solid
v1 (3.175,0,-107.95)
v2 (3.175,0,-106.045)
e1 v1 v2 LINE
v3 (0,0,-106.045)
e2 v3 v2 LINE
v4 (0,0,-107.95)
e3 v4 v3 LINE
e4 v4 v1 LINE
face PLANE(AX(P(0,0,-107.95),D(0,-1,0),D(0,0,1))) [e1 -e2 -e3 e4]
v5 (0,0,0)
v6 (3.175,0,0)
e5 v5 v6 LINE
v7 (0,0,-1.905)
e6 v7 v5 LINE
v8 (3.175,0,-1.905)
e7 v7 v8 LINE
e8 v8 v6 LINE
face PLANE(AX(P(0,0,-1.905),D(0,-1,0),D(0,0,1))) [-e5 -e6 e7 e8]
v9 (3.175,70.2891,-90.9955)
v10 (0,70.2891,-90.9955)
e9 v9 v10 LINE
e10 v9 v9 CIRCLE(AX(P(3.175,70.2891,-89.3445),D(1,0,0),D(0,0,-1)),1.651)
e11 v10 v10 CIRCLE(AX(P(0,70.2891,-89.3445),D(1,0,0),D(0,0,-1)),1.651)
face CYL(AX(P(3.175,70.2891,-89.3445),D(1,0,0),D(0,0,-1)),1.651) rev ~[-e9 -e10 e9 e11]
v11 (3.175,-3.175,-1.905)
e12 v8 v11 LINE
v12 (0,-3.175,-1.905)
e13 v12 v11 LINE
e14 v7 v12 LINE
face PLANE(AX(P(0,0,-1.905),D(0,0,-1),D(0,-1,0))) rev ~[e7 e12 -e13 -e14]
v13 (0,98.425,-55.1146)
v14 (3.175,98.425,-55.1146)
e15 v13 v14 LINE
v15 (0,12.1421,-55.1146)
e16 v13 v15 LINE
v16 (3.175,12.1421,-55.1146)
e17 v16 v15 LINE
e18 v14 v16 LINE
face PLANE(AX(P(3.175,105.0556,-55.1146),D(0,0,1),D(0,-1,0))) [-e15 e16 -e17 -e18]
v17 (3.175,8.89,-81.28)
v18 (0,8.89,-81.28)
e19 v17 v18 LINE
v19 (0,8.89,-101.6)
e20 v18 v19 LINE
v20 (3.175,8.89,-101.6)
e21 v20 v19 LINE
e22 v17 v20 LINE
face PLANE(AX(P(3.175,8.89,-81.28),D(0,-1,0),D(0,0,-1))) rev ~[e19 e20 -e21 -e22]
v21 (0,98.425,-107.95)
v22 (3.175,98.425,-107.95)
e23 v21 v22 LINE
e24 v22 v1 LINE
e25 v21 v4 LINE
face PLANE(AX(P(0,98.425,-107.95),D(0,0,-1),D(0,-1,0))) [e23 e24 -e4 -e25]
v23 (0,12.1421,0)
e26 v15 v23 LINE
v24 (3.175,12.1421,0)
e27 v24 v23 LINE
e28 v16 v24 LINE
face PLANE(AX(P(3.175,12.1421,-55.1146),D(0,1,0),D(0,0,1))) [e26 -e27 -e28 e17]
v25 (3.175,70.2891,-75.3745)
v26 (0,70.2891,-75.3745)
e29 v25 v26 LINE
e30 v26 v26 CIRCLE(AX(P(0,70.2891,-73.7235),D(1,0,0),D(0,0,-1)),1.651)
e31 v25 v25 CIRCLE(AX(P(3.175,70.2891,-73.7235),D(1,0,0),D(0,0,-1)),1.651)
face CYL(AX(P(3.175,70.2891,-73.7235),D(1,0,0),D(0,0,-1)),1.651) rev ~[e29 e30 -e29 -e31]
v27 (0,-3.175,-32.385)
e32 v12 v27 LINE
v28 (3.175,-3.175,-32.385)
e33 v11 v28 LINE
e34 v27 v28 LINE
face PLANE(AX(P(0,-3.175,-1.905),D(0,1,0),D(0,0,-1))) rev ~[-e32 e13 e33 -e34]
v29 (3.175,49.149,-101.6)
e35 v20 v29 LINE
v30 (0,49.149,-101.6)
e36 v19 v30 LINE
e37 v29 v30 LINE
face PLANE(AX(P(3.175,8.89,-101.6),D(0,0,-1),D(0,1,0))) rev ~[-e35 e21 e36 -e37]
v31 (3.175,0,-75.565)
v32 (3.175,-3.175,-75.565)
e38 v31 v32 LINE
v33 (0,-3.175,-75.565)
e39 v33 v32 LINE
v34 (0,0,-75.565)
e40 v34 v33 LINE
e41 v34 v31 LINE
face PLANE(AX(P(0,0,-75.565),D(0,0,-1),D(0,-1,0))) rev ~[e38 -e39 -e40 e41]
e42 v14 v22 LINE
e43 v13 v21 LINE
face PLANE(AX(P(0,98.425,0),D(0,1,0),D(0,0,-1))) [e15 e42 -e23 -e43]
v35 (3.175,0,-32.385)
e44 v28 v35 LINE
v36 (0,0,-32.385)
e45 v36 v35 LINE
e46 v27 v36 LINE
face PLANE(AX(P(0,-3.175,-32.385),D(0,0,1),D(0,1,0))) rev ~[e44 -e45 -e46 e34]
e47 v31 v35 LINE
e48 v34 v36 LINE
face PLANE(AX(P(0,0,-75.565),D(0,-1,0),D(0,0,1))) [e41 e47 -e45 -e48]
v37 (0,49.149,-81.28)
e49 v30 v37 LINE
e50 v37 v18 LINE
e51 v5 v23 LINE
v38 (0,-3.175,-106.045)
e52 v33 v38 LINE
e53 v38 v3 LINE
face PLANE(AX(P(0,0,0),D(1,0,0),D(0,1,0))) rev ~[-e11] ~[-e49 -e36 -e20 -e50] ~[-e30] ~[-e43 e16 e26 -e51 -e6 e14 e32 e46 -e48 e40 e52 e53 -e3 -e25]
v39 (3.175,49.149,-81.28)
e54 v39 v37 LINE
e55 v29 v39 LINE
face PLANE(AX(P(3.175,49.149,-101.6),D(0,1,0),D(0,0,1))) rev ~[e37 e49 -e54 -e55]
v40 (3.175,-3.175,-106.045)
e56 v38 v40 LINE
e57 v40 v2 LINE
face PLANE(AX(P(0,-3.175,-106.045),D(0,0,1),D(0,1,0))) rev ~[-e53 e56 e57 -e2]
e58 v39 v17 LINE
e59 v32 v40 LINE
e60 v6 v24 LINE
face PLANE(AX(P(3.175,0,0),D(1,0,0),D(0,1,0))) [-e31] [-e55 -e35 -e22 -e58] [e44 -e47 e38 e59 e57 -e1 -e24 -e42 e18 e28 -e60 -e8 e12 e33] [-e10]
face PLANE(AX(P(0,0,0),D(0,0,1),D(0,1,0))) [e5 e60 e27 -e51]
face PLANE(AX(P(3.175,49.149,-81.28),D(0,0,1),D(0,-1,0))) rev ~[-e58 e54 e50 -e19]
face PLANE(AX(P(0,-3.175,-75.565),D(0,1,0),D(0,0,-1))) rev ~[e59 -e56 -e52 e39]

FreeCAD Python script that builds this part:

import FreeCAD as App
import Part
import Sketcher

V = App.Vector
Q = App.Units.Quantity

doc = App.newDocument("Part")
body = doc.addObject("PartDesign::Body", "Body")

sketch1 = body.newObject("Sketcher::SketchObject", "Sketch")
sketch1.AttachmentSupport = (doc.getObject("YZ_Plane"), [""])
sketch1.MapMode = "FlatFace"
sketch1.addGeometry(Part.LineSegment(V(98.4, 0, 0), V(0, 0, 0)), False)
sketch1.addGeometry(Part.LineSegment(V(0, 0, 0), V(0, -1.9, 0)), False)
sketch1.addGeometry(Part.LineSegment(V(0, -1.9, 0), V(-3.2, -1.9, 0)), False)
sketch1.addGeometry(Part.LineSegment(V(-3.2, -1.9, 0), V(-3.2, -32.4, 0)), False)
sketch1.addGeometry(Part.LineSegment(V(-3.2, -32.4, 0), V(0, -32.4, 0)), False)
sketch1.addGeometry(Part.LineSegment(V(0, -32.4, 0), V(0, -75.6, 0)), False)
sketch1.addGeometry(Part.LineSegment(V(0, -75.6, 0), V(-3.2, -75.6, 0)), False)
sketch1.addGeometry(Part.LineSegment(V(-3.2, -75.6, 0), V(-3.2, -106, 0)), False)
sketch1.addGeometry(Part.LineSegment(V(-3.2, -106, 0), V(0, -106, 0)), False)
sketch1.addGeometry(Part.LineSegment(V(0, -106, 0), V(0, -108, 0)), False)
sketch1.addGeometry(Part.LineSegment(V(0, -108, 0), V(98.4, -108, 0)), False)
sketch1.addGeometry(Part.LineSegment(V(98.4, -108, 0), V(98.4, 0, 0)), False)
sketch1.addConstraint(Sketcher.Constraint("Coincident", 0, 2, 1, 1))
sketch1.addConstraint(Sketcher.Constraint("Coincident", 1, 2, 2, 1))
sketch1.addConstraint(Sketcher.Constraint("Coincident", 2, 2, 3, 1))
sketch1.addConstraint(Sketcher.Constraint("Coincident", 3, 2, 4, 1))
sketch1.addConstraint(Sketcher.Constraint("Coincident", 4, 2, 5, 1))
sketch1.addConstraint(Sketcher.Constraint("Coincident", 5, 2, 6, 1))
sketch1.addConstraint(Sketcher.Constraint("Coincident", 6, 2, 7, 1))
sketch1.addConstraint(Sketcher.Constraint("Coincident", 7, 2, 8, 1))
sketch1.addConstraint(Sketcher.Constraint("Coincident", 8, 2, 9, 1))
sketch1.addConstraint(Sketcher.Constraint("Coincident", 9, 2, 10, 1))
sketch1.addConstraint(Sketcher.Constraint("Coincident", 10, 2, 11, 1))
sketch1.addConstraint(Sketcher.Constraint("Coincident", 11, 2, 0, 1))
sketch1.addConstraint(Sketcher.Constraint("Horizontal", 0))
sketch1.addConstraint(Sketcher.Constraint("Vertical", 1))
sketch1.addConstraint(Sketcher.Constraint("Horizontal", 2))
sketch1.addConstraint(Sketcher.Constraint("Vertical", 3))
sketch1.addConstraint(Sketcher.Constraint("Horizontal", 4))
sketch1.addConstraint(Sketcher.Constraint("Vertical", 5))
sketch1.addConstraint(Sketcher.Constraint("Horizontal", 6))
sketch1.addConstraint(Sketcher.Constraint("Vertical", 7))
sketch1.addConstraint(Sketcher.Constraint("Horizontal", 8))
sketch1.addConstraint(Sketcher.Constraint("Vertical", 9))
sketch1.addConstraint(Sketcher.Constraint("Horizontal", 10))
sketch1.addConstraint(Sketcher.Constraint("Vertical", 11))
sketch1.addConstraint(Sketcher.Constraint("Coincident", 0, 2, -1, 1))
sketch1.addConstraint(Sketcher.Constraint("PointOnObject", 4, 2, -2))
sketch1.addConstraint(Sketcher.Constraint("PointOnObject", 8, 2, -2))
sketch1.addConstraint(Sketcher.Constraint("Vertical", 3, 2, 6, 2))
sketch1.addConstraint(Sketcher.Constraint("Equal", 3, 7))
sketch1.addConstraint(Sketcher.Constraint("Equal", 1, 9))
sketch1.addConstraint(Sketcher.Constraint("DistanceY", 3, 2, 3, 1, Q("1.2 in")))
sketch1.addConstraint(Sketcher.Constraint("DistanceY", 11, 1, 11, 2, Q("4.25 in")))
sketch1.addConstraint(Sketcher.Constraint("DistanceX", 0, 2, 0, 1, Q("3.875 in")))
sketch1.addConstraint(Sketcher.Constraint("DistanceX", 2, 2, 2, 1, Q("0.125 in")))
sketch1.addConstraint(Sketcher.Constraint("DistanceY", 1, 2, 1, 1, Q("0.075 in")))
pad1 = body.newObject("PartDesign::Pad", "Pad")
pad1.Profile = sketch1
pad1.Length = Q("0.125 in")

sketch2 = body.newObject("Sketcher::SketchObject", "Sketch001")
sketch2.AttachmentSupport = (doc.getObject("YZ_Plane"), [""])
sketch2.MapMode = "FlatFace"
sketch2.AttachmentOffset = App.Placement(V(0, 0, 0.125 * 25.4), App.Rotation())
sketch2.addGeometry(Part.LineSegment(V(9, -102, 0), V(49, -102, 0)), False)
sketch2.addGeometry(Part.LineSegment(V(49, -102, 0), V(49, -81, 0)), False)
sketch2.addGeometry(Part.LineSegment(V(49, -81, 0), V(9, -81, 0)), False)
sketch2.addGeometry(Part.LineSegment(V(9, -81, 0), V(9, -102, 0)), False)
sketch2.addConstraint(Sketcher.Constraint("Coincident", 0, 2, 1, 1))
sketch2.addConstraint(Sketcher.Constraint("Coincident", 1, 2, 2, 1))
sketch2.addConstraint(Sketcher.Constraint("Coincident", 2, 2, 3, 1))
sketch2.addConstraint(Sketcher.Constraint("Coincident", 3, 2, 0, 1))
sketch2.addConstraint(Sketcher.Constraint("Horizontal", 0))
sketch2.addConstraint(Sketcher.Constraint("Vertical", 1))
sketch2.addConstraint(Sketcher.Constraint("Horizontal", 2))
sketch2.addConstraint(Sketcher.Constraint("Vertical", 3))
sketch2.addConstraint(Sketcher.Constraint("DistanceY", 1, 1, 1, 2, Q("0.8 in")))
sketch2.addConstraint(Sketcher.Constraint("DistanceX", 0, 1, 0, 2, Q("1.585 in")))
sketch2.addConstraint(Sketcher.Constraint("DistanceX", -1, 1, 2, 2, Q("0.35 in")))
sketch2.addConstraint(Sketcher.Constraint("DistanceY", 0, 2, -1, 1, Q("4 in")))
pocket1 = body.newObject("PartDesign::Pocket", "Pocket")
pocket1.Profile = sketch2
pocket1.Length = Q("0.125 in")

sketch3 = body.newObject("Sketcher::SketchObject", "Sketch002")
sketch3.AttachmentSupport = (doc.getObject("YZ_Plane"), [""])
sketch3.MapMode = "FlatFace"
sketch3.AttachmentOffset = App.Placement(V(0, 0, 0.125 * 25.4), App.Rotation())
sketch3.addGeometry(Part.LineSegment(V(105, -55, 0), V(105, 26, 0)), False)
sketch3.addGeometry(Part.LineSegment(V(105, 26, 0), V(12, 26, 0)), False)
sketch3.addGeometry(Part.LineSegment(V(12, 26, 0), V(12, -55, 0)), False)
sketch3.addGeometry(Part.LineSegment(V(12, -55, 0), V(105, -55, 0)), False)
sketch3.addConstraint(Sketcher.Constraint("Coincident", 0, 2, 1, 1))
sketch3.addConstraint(Sketcher.Constraint("Coincident", 1, 2, 2, 1))
sketch3.addConstraint(Sketcher.Constraint("Coincident", 2, 2, 3, 1))
sketch3.addConstraint(Sketcher.Constraint("Coincident", 3, 2, 0, 1))
sketch3.addConstraint(Sketcher.Constraint("Vertical", 0))
sketch3.addConstraint(Sketcher.Constraint("Horizontal", 1))
sketch3.addConstraint(Sketcher.Constraint("Vertical", 2))
sketch3.addConstraint(Sketcher.Constraint("Horizontal", 3))
sketch3.addConstraint(Sketcher.Constraint("DistanceX", 1, 2, 1, 1, Q("3.658 in")))
sketch3.addConstraint(Sketcher.Constraint("DistanceY", 0, 1, 0, 2, Q("81.5105 mm")))
sketch3.addConstraint(Sketcher.Constraint("DistanceY", -1, 1, 0, 2, Q("1.0392 in")))
sketch3.addConstraint(Sketcher.Constraint("DistanceX", -1, 1, 0, 2, Q("105.0556 mm")))
pocket2 = body.newObject("PartDesign::Pocket", "Pocket001")
pocket2.Profile = sketch3
pocket2.Length = Q("0.125 in")

sketch4 = body.newObject("Sketcher::SketchObject", "Sketch003")
sketch4.AttachmentSupport = (doc.getObject("YZ_Plane"), [""])
sketch4.MapMode = "FlatFace"
sketch4.AttachmentOffset = App.Placement(V(0, 0, 0.125 * 25.4), App.Rotation())
sketch4.addGeometry(Part.Circle(V(70.3, -73.7, 0), V(0, 0, 1), 1.7), False)
sketch4.addGeometry(Part.Circle(V(70.3, -89.3, 0), V(0, 0, 1), 1.7), False)
sketch4.addConstraint(Sketcher.Constraint("Equal", 0, 1))
sketch4.addConstraint(Sketcher.Constraint("Vertical", 0, 3, 1, 3))
sketch4.addConstraint(Sketcher.Constraint("Diameter", 0, Q("0.13 in")))
sketch4.addConstraint(Sketcher.Constraint("DistanceY", 1, 3, 0, 3, Q("0.615 in")))
sketch4.addConstraint(Sketcher.Constraint("DistanceY", 0, 3, -1, 1, Q("2.9025 in")))
sketch4.addConstraint(Sketcher.Constraint("DistanceX", -1, 1, 0, 3, Q("70.289 mm")))
pocket3 = body.newObject("PartDesign::Pocket", "Pocket002")
pocket3.Profile = sketch4
pocket3.Length = Q("0.125 in")

doc.recompute()
